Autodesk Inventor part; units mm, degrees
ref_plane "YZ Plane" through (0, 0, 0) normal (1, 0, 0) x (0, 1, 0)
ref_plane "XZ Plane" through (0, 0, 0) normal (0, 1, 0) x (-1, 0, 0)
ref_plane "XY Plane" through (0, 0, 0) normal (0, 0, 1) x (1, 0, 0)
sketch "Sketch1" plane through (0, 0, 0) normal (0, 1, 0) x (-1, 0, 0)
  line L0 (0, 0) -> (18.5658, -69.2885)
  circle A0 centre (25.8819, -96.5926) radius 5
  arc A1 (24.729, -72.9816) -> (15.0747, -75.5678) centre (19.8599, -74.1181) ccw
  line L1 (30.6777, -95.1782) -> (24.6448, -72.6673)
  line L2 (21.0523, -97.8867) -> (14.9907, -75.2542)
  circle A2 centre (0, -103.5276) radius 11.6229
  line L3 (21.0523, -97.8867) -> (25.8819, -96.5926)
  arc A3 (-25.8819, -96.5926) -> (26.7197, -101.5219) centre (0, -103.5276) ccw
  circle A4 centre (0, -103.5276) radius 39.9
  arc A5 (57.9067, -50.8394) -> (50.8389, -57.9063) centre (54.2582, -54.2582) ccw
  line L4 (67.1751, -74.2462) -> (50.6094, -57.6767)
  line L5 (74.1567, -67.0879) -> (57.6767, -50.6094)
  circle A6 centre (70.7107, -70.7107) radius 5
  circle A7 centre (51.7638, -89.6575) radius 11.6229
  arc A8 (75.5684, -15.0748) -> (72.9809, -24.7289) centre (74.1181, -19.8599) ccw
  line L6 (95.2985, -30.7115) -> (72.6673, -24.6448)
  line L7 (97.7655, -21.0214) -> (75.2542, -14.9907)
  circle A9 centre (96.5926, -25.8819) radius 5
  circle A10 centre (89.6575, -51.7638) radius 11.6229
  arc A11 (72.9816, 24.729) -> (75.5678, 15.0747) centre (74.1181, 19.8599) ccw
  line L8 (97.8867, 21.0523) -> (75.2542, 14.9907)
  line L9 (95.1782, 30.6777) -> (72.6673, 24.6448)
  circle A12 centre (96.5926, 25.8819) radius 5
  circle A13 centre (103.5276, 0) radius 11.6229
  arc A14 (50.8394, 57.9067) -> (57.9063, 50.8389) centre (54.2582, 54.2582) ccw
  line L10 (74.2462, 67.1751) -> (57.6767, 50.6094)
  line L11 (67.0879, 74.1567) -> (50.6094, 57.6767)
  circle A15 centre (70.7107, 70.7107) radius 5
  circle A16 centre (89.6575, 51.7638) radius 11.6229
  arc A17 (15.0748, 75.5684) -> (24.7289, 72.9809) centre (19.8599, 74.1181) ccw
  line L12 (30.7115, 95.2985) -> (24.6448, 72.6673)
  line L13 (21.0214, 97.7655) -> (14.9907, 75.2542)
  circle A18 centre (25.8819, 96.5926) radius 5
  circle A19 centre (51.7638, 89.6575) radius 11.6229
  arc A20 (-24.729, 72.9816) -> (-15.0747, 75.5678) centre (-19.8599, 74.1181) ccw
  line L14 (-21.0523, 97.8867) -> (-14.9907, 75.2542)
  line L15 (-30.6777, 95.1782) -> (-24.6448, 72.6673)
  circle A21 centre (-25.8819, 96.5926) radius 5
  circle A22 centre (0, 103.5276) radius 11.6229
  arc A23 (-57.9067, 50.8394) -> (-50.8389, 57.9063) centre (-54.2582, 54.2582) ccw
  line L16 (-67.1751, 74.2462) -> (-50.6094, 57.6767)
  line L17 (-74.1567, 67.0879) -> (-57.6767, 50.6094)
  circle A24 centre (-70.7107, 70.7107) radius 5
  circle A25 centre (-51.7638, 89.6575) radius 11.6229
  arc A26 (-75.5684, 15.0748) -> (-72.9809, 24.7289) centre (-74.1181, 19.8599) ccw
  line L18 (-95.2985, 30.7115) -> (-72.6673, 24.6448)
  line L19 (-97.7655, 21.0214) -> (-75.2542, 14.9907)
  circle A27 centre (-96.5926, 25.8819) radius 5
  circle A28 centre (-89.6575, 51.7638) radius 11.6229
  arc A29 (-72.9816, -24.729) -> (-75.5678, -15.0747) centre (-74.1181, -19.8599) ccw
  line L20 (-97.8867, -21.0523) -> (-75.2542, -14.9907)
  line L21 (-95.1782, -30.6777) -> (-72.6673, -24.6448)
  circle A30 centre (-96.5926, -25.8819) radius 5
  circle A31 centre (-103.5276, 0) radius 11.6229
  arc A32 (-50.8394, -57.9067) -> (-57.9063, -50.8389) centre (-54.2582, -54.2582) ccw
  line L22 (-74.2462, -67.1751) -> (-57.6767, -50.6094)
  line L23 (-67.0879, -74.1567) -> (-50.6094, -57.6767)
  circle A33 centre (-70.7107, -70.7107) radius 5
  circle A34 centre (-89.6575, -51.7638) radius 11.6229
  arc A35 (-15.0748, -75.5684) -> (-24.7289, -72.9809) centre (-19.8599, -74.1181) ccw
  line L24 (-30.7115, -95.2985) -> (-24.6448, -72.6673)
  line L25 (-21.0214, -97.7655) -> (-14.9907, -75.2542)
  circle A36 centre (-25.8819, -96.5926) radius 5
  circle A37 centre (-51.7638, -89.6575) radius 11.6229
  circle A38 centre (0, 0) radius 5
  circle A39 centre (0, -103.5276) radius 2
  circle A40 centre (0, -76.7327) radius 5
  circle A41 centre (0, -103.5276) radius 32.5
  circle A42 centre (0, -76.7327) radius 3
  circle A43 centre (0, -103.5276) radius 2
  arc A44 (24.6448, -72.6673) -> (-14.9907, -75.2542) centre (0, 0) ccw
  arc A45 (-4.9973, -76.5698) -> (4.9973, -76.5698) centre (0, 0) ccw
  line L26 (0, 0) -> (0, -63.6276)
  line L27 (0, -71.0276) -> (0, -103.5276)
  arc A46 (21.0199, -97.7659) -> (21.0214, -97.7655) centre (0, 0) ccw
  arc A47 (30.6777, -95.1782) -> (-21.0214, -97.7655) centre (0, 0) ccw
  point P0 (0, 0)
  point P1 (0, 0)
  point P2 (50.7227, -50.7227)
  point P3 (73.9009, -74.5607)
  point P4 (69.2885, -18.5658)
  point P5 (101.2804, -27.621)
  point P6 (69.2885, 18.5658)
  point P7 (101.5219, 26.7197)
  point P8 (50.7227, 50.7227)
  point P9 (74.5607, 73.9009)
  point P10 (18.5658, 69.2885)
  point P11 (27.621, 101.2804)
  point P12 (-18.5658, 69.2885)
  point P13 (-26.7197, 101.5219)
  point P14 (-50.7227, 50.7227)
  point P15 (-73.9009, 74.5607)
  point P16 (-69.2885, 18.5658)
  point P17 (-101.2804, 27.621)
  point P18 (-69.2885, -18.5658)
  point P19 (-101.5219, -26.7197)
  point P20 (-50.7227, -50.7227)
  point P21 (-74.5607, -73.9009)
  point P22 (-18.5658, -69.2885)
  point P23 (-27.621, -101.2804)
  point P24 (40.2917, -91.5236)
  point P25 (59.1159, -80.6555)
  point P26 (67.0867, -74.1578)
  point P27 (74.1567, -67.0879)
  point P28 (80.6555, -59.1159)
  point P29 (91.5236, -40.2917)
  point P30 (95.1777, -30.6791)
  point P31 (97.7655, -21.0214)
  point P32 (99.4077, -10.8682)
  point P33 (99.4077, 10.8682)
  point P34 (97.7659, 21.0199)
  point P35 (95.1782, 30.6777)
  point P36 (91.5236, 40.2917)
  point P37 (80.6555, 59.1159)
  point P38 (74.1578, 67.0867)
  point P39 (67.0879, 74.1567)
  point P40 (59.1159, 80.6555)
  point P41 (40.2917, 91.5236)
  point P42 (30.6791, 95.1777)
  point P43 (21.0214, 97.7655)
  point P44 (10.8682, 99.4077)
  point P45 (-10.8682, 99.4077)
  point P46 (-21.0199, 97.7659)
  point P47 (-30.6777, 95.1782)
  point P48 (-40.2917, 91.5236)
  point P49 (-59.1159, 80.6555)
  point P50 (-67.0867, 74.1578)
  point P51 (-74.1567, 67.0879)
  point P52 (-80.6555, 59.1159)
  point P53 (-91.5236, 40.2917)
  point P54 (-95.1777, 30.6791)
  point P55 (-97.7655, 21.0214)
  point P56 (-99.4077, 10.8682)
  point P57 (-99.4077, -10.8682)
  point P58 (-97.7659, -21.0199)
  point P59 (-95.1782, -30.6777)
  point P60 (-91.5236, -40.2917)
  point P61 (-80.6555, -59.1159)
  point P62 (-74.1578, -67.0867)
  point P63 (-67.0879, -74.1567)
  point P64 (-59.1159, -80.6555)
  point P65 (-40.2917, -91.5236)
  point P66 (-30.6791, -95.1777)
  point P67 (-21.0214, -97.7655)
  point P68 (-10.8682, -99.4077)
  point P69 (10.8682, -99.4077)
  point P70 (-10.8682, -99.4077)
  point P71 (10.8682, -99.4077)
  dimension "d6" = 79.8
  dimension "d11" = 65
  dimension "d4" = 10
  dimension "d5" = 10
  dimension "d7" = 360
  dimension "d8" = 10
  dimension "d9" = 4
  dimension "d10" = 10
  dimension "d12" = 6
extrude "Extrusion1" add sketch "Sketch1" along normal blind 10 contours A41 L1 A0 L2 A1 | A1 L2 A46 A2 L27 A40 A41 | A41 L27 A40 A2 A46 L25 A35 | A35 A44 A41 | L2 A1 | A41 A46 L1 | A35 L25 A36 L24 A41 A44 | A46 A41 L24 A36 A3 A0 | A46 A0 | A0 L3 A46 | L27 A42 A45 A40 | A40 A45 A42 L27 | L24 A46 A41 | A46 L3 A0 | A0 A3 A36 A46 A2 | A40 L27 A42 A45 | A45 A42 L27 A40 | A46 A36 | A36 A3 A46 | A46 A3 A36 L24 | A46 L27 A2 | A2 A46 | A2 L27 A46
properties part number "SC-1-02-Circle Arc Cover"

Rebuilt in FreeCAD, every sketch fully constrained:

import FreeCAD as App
import Part
import Sketcher

V = App.Vector

doc = App.newDocument("Part")
body = doc.addObject("PartDesign::Body", "Body")

# Sketch on XZ plane
sketch1 = body.newObject("Sketcher::SketchObject", "Sketch")
sketch1.AttachmentSupport = (doc.getObject("XZ_Plane"), [""])
sketch1.MapMode = "FlatFace"
sketch1.addGeometry(Part.Circle(V(0, -103.5276, 0), V(0, 0, 1), 32.5), False)
sketch1.addGeometry(Part.Circle(V(0, -76.7327, 0), V(0, 0, 1), 3), False)
sketch1.addGeometry(Part.Circle(V(0, -103.5276, 0), V(0, 0, 1), 2), False)
sketch1.addConstraint(Sketcher.Constraint("Coincident", 2, 3, 0, 3))
sketch1.addConstraint(Sketcher.Constraint("PointOnObject", 0, 3, -2))
sketch1.addConstraint(Sketcher.Constraint("PointOnObject", 1, 3, -2))
sketch1.addConstraint(Sketcher.Constraint("Diameter", 0, 65.0))
sketch1.addConstraint(Sketcher.Constraint("Diameter", 1, 6.0))
sketch1.addConstraint(Sketcher.Constraint("Diameter", 2, 4.0))
sketch1.addConstraint(Sketcher.Constraint("DistanceY", 0, 3, 1, 3, 26.795))
sketch1.addConstraint(Sketcher.Constraint("DistanceY", 0, 3, -1, 1, 103.5276))
pad1 = body.newObject("PartDesign::Pad", "Pad")
pad1.Profile = sketch1
pad1.Length = 10
pad1.Reversed = True

doc.recompute()
